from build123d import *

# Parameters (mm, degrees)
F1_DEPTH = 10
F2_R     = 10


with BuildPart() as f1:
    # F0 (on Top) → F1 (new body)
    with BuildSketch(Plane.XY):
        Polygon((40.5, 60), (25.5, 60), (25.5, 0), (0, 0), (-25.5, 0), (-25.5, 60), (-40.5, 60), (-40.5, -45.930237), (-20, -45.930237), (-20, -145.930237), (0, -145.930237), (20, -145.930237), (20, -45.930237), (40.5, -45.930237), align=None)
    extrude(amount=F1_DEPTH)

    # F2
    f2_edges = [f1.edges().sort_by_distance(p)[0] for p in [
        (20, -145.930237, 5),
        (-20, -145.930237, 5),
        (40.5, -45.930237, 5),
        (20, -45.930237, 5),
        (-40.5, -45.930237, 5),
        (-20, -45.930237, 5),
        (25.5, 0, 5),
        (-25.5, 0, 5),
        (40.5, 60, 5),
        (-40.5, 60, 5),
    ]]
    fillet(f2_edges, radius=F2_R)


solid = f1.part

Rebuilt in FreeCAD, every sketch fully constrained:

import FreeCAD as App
import Part
import Sketcher

V = App.Vector
Q = App.Units.Quantity


def edges_at(feature, points):
    """Names of the edges that pass closest to the given points."""
    edges = feature.Shape.Edges
    near = lambda p: min(range(len(edges)), key=lambda i: edges[i].distToShape(Part.Vertex(*p))[0])
    return sorted({f"Edge{near(p) + 1}" for p in points})

doc = App.newDocument("Part")
body = doc.addObject("PartDesign::Body", "Body")

sketch1 = body.newObject("Sketcher::SketchObject", "Sketch")
sketch1.AttachmentSupport = (doc.getObject("XY_Plane"), [""])
sketch1.MapMode = "FlatFace"
sketch1.addGeometry(Part.LineSegment(V(40.5, 60, 0), V(25.5, 60, 0)), False)
sketch1.addGeometry(Part.LineSegment(V(25.5, 60, 0), V(25.5, 0, 0)), False)
sketch1.addGeometry(Part.LineSegment(V(25.5, 0, 0), V(-25.5, 0, 0)), False)
sketch1.addGeometry(Part.LineSegment(V(-25.5, 0, 0), V(-25.5, 60, 0)), False)
sketch1.addGeometry(Part.LineSegment(V(-25.5, 60, 0), V(-40.5, 60, 0)), False)
sketch1.addGeometry(Part.LineSegment(V(-40.5, 60, 0), V(-40.5, -45.930237, 0)), False)
sketch1.addGeometry(Part.LineSegment(V(-40.5, -45.930237, 0), V(-20, -45.930237, 0)), False)
sketch1.addGeometry(Part.LineSegment(V(-20, -45.930237, 0), V(-20, -145.930237, 0)), False)
sketch1.addGeometry(Part.LineSegment(V(-20, -145.930237, 0), V(20, -145.930237, 0)), False)
sketch1.addGeometry(Part.LineSegment(V(20, -145.930237, 0), V(20, -45.930237, 0)), False)
sketch1.addGeometry(Part.LineSegment(V(20, -45.930237, 0), V(40.5, -45.930237, 0)), False)
sketch1.addGeometry(Part.LineSegment(V(40.5, -45.930237, 0), V(40.5, 60, 0)), False)
sketch1.addConstraint(Sketcher.Constraint("Coincident", 0, 2, 1, 1))
sketch1.addConstraint(Sketcher.Constraint("Coincident", 1, 2, 2, 1))
sketch1.addConstraint(Sketcher.Constraint("Coincident", 2, 2, 3, 1))
sketch1.addConstraint(Sketcher.Constraint("Coincident", 3, 2, 4, 1))
sketch1.addConstraint(Sketcher.Constraint("Coincident", 4, 2, 5, 1))
sketch1.addConstraint(Sketcher.Constraint("Coincident", 5, 2, 6, 1))
sketch1.addConstraint(Sketcher.Constraint("Coincident", 6, 2, 7, 1))
sketch1.addConstraint(Sketcher.Constraint("Coincident", 7, 2, 8, 1))
sketch1.addConstraint(Sketcher.Constraint("Coincident", 8, 2, 9, 1))
sketch1.addConstraint(Sketcher.Constraint("Coincident", 9, 2, 10, 1))
sketch1.addConstraint(Sketcher.Constraint("Coincident", 10, 2, 11, 1))
sketch1.addConstraint(Sketcher.Constraint("Coincident", 11, 2, 0, 1))
sketch1.addConstraint(Sketcher.Constraint("Horizontal", 0))
sketch1.addConstraint(Sketcher.Constraint("Vertical", 1))
sketch1.addConstraint(Sketcher.Constraint("Horizontal", 2))
sketch1.addConstraint(Sketcher.Constraint("Vertical", 3))
sketch1.addConstraint(Sketcher.Constraint("Horizontal", 4))
sketch1.addConstraint(Sketcher.Constraint("Vertical", 5))
sketch1.addConstraint(Sketcher.Constraint("Horizontal", 6))
sketch1.addConstraint(Sketcher.Constraint("Vertical", 7))
sketch1.addConstraint(Sketcher.Constraint("Horizontal", 8))
sketch1.addConstraint(Sketcher.Constraint("Vertical", 9))
sketch1.addConstraint(Sketcher.Constraint("Horizontal", 10))
sketch1.addConstraint(Sketcher.Constraint("Vertical", 11))
sketch1.addConstraint(Sketcher.Constraint("Symmetric", 1, 2, 2, 2, -1, 1))
sketch1.addConstraint(Sketcher.Constraint("Symmetric", 6, 2, 9, 2, -2))
sketch1.addConstraint(Sketcher.Constraint("Symmetric", 4, 2, 11, 2, -2))
sketch1.addConstraint(Sketcher.Constraint("DistanceX", 0, 2, 0, 1, Q("15 mm")))
sketch1.addConstraint(Sketcher.Constraint("DistanceX", 2, 2, 2, 1, Q("51 mm")))
sketch1.addConstraint(Sketcher.Constraint("DistanceX", 8, 1, 8, 2, Q("40 mm")))
sketch1.addConstraint(Sketcher.Constraint("DistanceY", 1, 2, 1, 1, Q("60 mm")))
sketch1.addConstraint(Sketcher.Constraint("DistanceY", 7, 2, 7, 1, Q("100 mm")))
sketch1.addConstraint(Sketcher.Constraint("DistanceY", 5, 2, 5, 1, Q("105.930237 mm")))
pad1 = body.newObject("PartDesign::Pad", "Pad")
pad1.Profile = sketch1
pad1.Length = 10
doc.recompute()

fillet = body.newObject("PartDesign::Fillet", "Fillet")
fillet.Base = (pad1, edges_at(pad1, [
    (20, -145.93, 5),
    (-20, -145.93, 5),
    (40.5, -45.93, 5),
    (20, -45.93, 5),
    (-40.5, -45.93, 5),
    (-20, -45.93, 5),
    (25.5, 0, 5),
    (-25.5, 0, 5),
    (40.5, 60, 5),
    (-40.5, 60, 5),
]))
fillet.Radius = 10

doc.recompute()
